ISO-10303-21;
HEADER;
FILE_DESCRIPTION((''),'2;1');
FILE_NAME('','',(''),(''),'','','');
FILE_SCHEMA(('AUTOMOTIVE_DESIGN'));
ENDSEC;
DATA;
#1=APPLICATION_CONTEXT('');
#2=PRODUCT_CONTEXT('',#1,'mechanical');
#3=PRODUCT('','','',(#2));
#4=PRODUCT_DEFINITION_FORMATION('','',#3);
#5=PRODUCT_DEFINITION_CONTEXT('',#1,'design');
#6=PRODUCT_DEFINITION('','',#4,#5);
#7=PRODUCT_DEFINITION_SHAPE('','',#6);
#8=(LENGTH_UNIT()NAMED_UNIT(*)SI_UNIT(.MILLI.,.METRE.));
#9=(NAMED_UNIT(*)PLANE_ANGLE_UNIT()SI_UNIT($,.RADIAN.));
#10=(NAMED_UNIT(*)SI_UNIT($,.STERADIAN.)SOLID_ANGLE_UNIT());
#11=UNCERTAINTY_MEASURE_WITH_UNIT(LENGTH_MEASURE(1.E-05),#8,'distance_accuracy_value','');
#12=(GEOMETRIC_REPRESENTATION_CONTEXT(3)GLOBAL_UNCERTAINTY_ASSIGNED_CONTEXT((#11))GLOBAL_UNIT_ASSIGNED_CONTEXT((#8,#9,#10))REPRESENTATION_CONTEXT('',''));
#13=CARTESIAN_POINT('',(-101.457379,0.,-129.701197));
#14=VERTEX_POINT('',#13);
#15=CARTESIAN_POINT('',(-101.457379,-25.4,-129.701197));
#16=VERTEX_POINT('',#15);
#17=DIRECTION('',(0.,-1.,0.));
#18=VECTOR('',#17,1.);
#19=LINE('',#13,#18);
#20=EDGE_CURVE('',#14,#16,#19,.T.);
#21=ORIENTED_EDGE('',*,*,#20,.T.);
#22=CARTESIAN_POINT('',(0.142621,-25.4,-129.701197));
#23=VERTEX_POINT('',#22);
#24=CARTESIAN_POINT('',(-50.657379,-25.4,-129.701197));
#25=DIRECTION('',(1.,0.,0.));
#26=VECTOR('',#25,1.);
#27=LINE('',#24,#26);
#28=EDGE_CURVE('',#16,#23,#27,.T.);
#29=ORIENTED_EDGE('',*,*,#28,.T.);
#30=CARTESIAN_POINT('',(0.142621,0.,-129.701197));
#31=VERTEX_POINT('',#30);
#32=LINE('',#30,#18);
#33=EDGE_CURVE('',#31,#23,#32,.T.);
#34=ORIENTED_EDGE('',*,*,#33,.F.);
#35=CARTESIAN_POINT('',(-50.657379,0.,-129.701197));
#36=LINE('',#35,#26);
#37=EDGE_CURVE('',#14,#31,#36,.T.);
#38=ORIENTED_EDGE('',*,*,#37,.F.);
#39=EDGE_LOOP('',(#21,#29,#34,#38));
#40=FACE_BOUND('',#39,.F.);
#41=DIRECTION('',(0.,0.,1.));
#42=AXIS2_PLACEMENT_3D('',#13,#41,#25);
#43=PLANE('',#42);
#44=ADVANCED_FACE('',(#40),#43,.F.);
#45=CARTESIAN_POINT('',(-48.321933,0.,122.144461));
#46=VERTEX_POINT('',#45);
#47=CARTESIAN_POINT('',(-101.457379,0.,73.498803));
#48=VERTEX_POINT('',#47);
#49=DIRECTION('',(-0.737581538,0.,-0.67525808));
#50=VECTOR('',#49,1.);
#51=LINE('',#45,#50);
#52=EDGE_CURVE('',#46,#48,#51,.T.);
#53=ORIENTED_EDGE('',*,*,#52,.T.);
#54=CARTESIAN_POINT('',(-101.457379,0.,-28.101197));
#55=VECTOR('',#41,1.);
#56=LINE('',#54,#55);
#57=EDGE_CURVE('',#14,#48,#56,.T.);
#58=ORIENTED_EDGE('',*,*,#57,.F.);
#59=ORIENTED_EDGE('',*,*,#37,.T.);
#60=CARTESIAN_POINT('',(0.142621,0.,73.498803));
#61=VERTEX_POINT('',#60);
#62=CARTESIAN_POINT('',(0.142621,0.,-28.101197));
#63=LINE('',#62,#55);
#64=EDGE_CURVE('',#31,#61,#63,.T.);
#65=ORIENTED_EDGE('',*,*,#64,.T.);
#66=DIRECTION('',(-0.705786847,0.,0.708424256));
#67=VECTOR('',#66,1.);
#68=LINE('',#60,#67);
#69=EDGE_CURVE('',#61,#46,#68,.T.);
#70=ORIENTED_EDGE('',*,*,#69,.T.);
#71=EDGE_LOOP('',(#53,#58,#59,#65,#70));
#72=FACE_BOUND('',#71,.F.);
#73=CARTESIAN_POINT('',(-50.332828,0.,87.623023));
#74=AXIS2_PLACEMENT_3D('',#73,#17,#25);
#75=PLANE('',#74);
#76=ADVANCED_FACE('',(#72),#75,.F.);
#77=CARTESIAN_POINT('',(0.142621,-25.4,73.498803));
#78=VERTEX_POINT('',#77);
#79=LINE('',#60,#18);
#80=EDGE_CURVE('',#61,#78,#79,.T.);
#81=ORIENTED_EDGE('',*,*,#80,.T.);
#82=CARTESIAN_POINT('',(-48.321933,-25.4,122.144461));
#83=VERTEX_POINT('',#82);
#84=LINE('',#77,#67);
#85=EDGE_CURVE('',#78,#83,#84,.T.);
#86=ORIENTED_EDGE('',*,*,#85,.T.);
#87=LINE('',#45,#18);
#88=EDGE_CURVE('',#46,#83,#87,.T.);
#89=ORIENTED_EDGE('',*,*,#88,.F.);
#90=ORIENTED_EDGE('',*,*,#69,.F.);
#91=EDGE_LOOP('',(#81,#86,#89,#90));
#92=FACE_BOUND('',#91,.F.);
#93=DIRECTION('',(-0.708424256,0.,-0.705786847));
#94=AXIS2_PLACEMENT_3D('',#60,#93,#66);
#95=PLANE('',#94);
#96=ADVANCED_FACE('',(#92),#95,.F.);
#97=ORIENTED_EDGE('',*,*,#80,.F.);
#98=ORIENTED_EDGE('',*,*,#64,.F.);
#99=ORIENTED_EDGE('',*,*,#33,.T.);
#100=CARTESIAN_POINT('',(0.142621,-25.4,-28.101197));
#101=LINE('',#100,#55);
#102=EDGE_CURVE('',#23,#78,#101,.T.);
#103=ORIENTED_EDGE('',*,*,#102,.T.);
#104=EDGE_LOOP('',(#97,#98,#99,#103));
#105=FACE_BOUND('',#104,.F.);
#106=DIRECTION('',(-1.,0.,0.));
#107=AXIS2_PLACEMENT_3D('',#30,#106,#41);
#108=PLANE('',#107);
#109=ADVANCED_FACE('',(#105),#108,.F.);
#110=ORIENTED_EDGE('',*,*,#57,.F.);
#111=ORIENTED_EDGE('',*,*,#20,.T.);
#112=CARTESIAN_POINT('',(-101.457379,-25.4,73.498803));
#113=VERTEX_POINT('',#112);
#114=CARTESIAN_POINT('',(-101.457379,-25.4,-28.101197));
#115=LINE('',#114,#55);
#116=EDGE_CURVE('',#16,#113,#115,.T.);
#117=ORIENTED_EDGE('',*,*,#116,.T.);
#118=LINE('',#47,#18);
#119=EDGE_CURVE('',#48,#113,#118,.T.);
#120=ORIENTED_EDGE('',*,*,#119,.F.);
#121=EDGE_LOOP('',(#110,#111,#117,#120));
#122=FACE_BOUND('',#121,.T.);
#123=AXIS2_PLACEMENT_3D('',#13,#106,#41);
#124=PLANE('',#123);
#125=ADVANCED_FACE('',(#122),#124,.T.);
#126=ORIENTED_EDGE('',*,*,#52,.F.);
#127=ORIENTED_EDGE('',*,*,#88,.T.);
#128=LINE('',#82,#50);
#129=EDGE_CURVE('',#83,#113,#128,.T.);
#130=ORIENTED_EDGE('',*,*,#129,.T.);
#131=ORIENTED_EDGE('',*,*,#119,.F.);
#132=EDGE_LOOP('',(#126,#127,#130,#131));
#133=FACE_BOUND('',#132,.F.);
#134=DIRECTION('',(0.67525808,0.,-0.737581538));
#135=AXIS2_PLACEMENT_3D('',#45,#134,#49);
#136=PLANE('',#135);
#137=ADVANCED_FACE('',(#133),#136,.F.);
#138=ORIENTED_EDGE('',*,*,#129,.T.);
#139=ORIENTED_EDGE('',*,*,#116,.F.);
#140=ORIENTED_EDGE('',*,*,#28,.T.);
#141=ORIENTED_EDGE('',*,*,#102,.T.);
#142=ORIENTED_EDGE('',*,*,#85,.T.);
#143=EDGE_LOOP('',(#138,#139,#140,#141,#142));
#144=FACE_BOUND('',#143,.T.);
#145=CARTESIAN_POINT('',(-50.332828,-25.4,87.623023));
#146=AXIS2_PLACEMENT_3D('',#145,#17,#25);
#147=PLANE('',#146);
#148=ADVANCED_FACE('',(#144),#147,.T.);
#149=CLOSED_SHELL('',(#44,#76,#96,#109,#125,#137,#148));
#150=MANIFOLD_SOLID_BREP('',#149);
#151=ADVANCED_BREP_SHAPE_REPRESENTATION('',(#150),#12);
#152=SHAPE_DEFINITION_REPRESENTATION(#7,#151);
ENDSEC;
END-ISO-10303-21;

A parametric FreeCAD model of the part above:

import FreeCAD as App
import Part
import Sketcher
from FreeCAD import Vector
Q = App.Units.Quantity


def add_polygon(sketch, points):
    """Adds a closed chain of lines whose ends are joined by coincident constraints."""
    first, n = sketch.GeometryCount, len(points)
    for a, b in zip(points, points[1:] + points[:1]):
        sketch.addGeometry(Part.LineSegment(App.Vector(*a, 0), App.Vector(*b, 0)), False)
    for i in range(n):
        sketch.addConstraint(Sketcher.Constraint("Coincident", first + i, 2, first + (i + 1) % n, 1))

doc = App.newDocument("Part")
body = doc.addObject("PartDesign::Body", "Body")

sketch1 = body.newObject("Sketcher::SketchObject", "Sketch")
sketch1.AttachmentSupport = (doc.getObject("XZ_Plane"), [""])
sketch1.MapMode = "FlatFace"
add_polygon(sketch1, [(-101.457379, 73.498803), (-101.457379, -129.701197), (0.142621, -129.701197), (0.142621, 73.498803)])
sketch1.addConstraint(Sketcher.Constraint("Vertical", 0))
sketch1.addConstraint(Sketcher.Constraint("Horizontal", 1))
sketch1.addConstraint(Sketcher.Constraint("Vertical", 2))
sketch1.addConstraint(Sketcher.Constraint("Horizontal", 3))
sketch1.addConstraint(Sketcher.Constraint("DistanceX", 1, 1, 1, 2, Q("4 in")))
sketch1.addConstraint(Sketcher.Constraint("DistanceY", 0, 2, 0, 1, Q("8 in")))
sketch1.addConstraint(Sketcher.Constraint("DistanceX", 0, 2, -1, 1, 101.457379))
sketch1.addConstraint(Sketcher.Constraint("DistanceY", 0, 2, -1, 1, 129.701197))
pad1 = body.newObject("PartDesign::Pad", "Pad")
pad1.Profile = sketch1
pad1.Length = Q("1 in")

sketch2 = body.newObject("Sketcher::SketchObject", "Sketch001")
sketch2.AttachmentSupport = (doc.getObject("XZ_Plane"), [""])
sketch2.MapMode = "FlatFace"
add_polygon(sketch2, [(-48.321933, 122.144461), (-101.457379, 73.498803), (0.142621, 73.498803)])
sketch2.addConstraint(Sketcher.Constraint("Horizontal", 1))
sketch2.addConstraint(Sketcher.Constraint("DistanceX", 1, 1, 1, 2, Q("4 in")))
sketch2.addConstraint(Sketcher.Constraint("Distance", 2, 68.667409))
sketch2.addConstraint(Sketcher.Constraint("DistanceX", 0, 2, -1, 1, 101.457379))
sketch2.addConstraint(Sketcher.Constraint("DistanceY", -1, 1, 2, 2, 122.144461))
sketch2.addConstraint(Sketcher.Constraint("DistanceY", 1, 2, 2, 2, 48.645658))
pad2 = body.newObject("PartDesign::Pad", "Pad001")
pad2.Profile = sketch2
pad2.Length = Q("1 in")

doc.recompute()
